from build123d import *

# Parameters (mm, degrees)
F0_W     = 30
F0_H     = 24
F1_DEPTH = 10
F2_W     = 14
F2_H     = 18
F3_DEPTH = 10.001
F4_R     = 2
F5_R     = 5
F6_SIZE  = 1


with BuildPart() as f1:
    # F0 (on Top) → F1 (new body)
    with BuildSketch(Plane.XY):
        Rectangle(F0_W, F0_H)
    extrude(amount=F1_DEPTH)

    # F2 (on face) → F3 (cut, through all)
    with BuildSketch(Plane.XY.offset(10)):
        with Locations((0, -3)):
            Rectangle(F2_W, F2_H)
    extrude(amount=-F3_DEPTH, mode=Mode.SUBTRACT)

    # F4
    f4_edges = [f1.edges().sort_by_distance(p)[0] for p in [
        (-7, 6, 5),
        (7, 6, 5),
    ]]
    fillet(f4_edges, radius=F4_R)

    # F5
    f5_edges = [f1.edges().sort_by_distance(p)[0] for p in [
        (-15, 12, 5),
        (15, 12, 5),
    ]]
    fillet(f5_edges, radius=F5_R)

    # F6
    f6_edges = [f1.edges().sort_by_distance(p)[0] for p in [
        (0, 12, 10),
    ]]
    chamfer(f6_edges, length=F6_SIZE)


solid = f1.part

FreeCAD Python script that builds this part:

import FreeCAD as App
import Part
import Sketcher

V = App.Vector


def edges_at(feature, points):
    """Names of the edges that pass closest to the given points."""
    edges = feature.Shape.Edges
    near = lambda p: min(range(len(edges)), key=lambda i: edges[i].distToShape(Part.Vertex(*p))[0])
    return sorted({f"Edge{near(p) + 1}" for p in points})


def add_polygon(sketch, points):
    """Adds a closed chain of lines whose ends are joined by coincident constraints."""
    first, n = sketch.GeometryCount, len(points)
    for a, b in zip(points, points[1:] + points[:1]):
        sketch.addGeometry(Part.LineSegment(App.Vector(*a, 0), App.Vector(*b, 0)), False)
    for i in range(n):
        sketch.addConstraint(Sketcher.Constraint("Coincident", first + i, 2, first + (i + 1) % n, 1))

doc = App.newDocument("Part")
body = doc.addObject("PartDesign::Body", "Body")

# Sketch on XY plane
sketch1 = body.newObject("Sketcher::SketchObject", "Sketch")
sketch1.AttachmentSupport = (doc.getObject("XY_Plane"), [""])
sketch1.MapMode = "FlatFace"
add_polygon(sketch1, [(-15, 12), (-15, -12), (15, -12), (15, 12)])  # lines 0-3
sketch1.addConstraint(Sketcher.Constraint("Vertical", 0))
sketch1.addConstraint(Sketcher.Constraint("Horizontal", 1))
sketch1.addConstraint(Sketcher.Constraint("Vertical", 2))
sketch1.addConstraint(Sketcher.Constraint("Horizontal", 3))
sketch1.addConstraint(Sketcher.Constraint("Symmetric", 0, 2, 2, 2, -1, 1))
sketch1.addConstraint(Sketcher.Constraint("DistanceX", 1, 1, 1, 2, 30.0))
sketch1.addConstraint(Sketcher.Constraint("DistanceY", 0, 2, 0, 1, 24.0))
pad1 = body.newObject("PartDesign::Pad", "Pad")
pad1.Profile = sketch1
pad1.Length = 10

# Sketch on XY plane
sketch2 = body.newObject("Sketcher::SketchObject", "Sketch001")
sketch2.AttachmentSupport = (doc.getObject("XY_Plane"), [""])
sketch2.MapMode = "FlatFace"
sketch2.AttachmentOffset = App.Placement(V(0, 0, 10), App.Rotation())
add_polygon(sketch2, [(-7, 6), (-7, -12), (7, -12), (7, 6)])  # lines 0-3
sketch2.addConstraint(Sketcher.Constraint("Vertical", 0))
sketch2.addConstraint(Sketcher.Constraint("Horizontal", 1))
sketch2.addConstraint(Sketcher.Constraint("Vertical", 2))
sketch2.addConstraint(Sketcher.Constraint("Horizontal", 3))
sketch2.addConstraint(Sketcher.Constraint("DistanceX", 1, 1, 1, 2, 14.0))
sketch2.addConstraint(Sketcher.Constraint("DistanceY", 0, 2, 0, 1, 18.0))
sketch2.addConstraint(Sketcher.Constraint("DistanceX", 0, 2, -1, 1, 7.0))
sketch2.addConstraint(Sketcher.Constraint("DistanceY", 0, 2, -1, 1, 12.0))
pocket1 = body.newObject("PartDesign::Pocket", "Pocket")
pocket1.Profile = sketch2
pocket1.Type = "ThroughAll"
doc.recompute()

fillet = body.newObject("PartDesign::Fillet", "Fillet")
fillet.Base = (pocket1, edges_at(pocket1, [(-7, 6, 5), (7, 6, 5)]))
fillet.Radius = 2
doc.recompute()

fillet2 = body.newObject("PartDesign::Fillet", "Fillet001")
fillet2.Base = (fillet, edges_at(fillet, [(-15, 12, 5), (15, 12, 5)]))
fillet2.Radius = 5
doc.recompute()

chamfer = body.newObject("PartDesign::Chamfer", "Chamfer")
chamfer.Base = (fillet2, edges_at(fillet2, [(0, 12, 10)]))
chamfer.Size = 1

doc.recompute()
